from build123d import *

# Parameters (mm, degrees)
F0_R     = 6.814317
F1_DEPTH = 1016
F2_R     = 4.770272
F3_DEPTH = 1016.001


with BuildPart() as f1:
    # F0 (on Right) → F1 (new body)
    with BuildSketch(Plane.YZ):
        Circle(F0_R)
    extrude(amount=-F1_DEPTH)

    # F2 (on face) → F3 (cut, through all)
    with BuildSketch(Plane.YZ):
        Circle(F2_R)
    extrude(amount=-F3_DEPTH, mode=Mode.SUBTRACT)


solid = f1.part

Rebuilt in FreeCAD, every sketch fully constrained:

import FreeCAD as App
import Part
import Sketcher

V = App.Vector
Q = App.Units.Quantity

doc = App.newDocument("Part")
body = doc.addObject("PartDesign::Body", "Body")

# Sketch on YZ plane
sketch1 = doc.addObject("Sketcher::SketchObject", "Sketch")
body.addObject(sketch1)
sketch1.AttachmentSupport = (doc.YZ_Plane, [""])
sketch1.MapMode = "FlatFace"
sketch1.addGeometry(Part.Circle(V(0, 0, 0), V(0, 0, 1), 7), False)
sketch1.addConstraint([
    Sketcher.Constraint("Coincident", 0, 3, -1, 1),
    Sketcher.Constraint("Diameter", 0, 13.628634),
])
pad1 = doc.addObject("PartDesign::Pad", "Pad")
body.addObject(pad1)
pad1.Profile = sketch1
pad1.Length = Q("40 in")
pad1.Reversed = True

# Sketch on YZ plane
sketch2 = doc.addObject("Sketcher::SketchObject", "Sketch001")
body.addObject(sketch2)
sketch2.AttachmentSupport = (doc.YZ_Plane, [""])
sketch2.MapMode = "FlatFace"
sketch2.addGeometry(Part.Circle(V(0, 0, 0), V(0, 0, 1), 4.8), False)
sketch2.addConstraint([
    Sketcher.Constraint("Coincident", 0, 3, -1, 1),
    Sketcher.Constraint("Diameter", 0, 9.540544),
])
pocket1 = doc.addObject("PartDesign::Pocket", "Pocket")
body.addObject(pocket1)
pocket1.Profile = sketch2
pocket1.Type = "ThroughAll"

doc.recompute()
